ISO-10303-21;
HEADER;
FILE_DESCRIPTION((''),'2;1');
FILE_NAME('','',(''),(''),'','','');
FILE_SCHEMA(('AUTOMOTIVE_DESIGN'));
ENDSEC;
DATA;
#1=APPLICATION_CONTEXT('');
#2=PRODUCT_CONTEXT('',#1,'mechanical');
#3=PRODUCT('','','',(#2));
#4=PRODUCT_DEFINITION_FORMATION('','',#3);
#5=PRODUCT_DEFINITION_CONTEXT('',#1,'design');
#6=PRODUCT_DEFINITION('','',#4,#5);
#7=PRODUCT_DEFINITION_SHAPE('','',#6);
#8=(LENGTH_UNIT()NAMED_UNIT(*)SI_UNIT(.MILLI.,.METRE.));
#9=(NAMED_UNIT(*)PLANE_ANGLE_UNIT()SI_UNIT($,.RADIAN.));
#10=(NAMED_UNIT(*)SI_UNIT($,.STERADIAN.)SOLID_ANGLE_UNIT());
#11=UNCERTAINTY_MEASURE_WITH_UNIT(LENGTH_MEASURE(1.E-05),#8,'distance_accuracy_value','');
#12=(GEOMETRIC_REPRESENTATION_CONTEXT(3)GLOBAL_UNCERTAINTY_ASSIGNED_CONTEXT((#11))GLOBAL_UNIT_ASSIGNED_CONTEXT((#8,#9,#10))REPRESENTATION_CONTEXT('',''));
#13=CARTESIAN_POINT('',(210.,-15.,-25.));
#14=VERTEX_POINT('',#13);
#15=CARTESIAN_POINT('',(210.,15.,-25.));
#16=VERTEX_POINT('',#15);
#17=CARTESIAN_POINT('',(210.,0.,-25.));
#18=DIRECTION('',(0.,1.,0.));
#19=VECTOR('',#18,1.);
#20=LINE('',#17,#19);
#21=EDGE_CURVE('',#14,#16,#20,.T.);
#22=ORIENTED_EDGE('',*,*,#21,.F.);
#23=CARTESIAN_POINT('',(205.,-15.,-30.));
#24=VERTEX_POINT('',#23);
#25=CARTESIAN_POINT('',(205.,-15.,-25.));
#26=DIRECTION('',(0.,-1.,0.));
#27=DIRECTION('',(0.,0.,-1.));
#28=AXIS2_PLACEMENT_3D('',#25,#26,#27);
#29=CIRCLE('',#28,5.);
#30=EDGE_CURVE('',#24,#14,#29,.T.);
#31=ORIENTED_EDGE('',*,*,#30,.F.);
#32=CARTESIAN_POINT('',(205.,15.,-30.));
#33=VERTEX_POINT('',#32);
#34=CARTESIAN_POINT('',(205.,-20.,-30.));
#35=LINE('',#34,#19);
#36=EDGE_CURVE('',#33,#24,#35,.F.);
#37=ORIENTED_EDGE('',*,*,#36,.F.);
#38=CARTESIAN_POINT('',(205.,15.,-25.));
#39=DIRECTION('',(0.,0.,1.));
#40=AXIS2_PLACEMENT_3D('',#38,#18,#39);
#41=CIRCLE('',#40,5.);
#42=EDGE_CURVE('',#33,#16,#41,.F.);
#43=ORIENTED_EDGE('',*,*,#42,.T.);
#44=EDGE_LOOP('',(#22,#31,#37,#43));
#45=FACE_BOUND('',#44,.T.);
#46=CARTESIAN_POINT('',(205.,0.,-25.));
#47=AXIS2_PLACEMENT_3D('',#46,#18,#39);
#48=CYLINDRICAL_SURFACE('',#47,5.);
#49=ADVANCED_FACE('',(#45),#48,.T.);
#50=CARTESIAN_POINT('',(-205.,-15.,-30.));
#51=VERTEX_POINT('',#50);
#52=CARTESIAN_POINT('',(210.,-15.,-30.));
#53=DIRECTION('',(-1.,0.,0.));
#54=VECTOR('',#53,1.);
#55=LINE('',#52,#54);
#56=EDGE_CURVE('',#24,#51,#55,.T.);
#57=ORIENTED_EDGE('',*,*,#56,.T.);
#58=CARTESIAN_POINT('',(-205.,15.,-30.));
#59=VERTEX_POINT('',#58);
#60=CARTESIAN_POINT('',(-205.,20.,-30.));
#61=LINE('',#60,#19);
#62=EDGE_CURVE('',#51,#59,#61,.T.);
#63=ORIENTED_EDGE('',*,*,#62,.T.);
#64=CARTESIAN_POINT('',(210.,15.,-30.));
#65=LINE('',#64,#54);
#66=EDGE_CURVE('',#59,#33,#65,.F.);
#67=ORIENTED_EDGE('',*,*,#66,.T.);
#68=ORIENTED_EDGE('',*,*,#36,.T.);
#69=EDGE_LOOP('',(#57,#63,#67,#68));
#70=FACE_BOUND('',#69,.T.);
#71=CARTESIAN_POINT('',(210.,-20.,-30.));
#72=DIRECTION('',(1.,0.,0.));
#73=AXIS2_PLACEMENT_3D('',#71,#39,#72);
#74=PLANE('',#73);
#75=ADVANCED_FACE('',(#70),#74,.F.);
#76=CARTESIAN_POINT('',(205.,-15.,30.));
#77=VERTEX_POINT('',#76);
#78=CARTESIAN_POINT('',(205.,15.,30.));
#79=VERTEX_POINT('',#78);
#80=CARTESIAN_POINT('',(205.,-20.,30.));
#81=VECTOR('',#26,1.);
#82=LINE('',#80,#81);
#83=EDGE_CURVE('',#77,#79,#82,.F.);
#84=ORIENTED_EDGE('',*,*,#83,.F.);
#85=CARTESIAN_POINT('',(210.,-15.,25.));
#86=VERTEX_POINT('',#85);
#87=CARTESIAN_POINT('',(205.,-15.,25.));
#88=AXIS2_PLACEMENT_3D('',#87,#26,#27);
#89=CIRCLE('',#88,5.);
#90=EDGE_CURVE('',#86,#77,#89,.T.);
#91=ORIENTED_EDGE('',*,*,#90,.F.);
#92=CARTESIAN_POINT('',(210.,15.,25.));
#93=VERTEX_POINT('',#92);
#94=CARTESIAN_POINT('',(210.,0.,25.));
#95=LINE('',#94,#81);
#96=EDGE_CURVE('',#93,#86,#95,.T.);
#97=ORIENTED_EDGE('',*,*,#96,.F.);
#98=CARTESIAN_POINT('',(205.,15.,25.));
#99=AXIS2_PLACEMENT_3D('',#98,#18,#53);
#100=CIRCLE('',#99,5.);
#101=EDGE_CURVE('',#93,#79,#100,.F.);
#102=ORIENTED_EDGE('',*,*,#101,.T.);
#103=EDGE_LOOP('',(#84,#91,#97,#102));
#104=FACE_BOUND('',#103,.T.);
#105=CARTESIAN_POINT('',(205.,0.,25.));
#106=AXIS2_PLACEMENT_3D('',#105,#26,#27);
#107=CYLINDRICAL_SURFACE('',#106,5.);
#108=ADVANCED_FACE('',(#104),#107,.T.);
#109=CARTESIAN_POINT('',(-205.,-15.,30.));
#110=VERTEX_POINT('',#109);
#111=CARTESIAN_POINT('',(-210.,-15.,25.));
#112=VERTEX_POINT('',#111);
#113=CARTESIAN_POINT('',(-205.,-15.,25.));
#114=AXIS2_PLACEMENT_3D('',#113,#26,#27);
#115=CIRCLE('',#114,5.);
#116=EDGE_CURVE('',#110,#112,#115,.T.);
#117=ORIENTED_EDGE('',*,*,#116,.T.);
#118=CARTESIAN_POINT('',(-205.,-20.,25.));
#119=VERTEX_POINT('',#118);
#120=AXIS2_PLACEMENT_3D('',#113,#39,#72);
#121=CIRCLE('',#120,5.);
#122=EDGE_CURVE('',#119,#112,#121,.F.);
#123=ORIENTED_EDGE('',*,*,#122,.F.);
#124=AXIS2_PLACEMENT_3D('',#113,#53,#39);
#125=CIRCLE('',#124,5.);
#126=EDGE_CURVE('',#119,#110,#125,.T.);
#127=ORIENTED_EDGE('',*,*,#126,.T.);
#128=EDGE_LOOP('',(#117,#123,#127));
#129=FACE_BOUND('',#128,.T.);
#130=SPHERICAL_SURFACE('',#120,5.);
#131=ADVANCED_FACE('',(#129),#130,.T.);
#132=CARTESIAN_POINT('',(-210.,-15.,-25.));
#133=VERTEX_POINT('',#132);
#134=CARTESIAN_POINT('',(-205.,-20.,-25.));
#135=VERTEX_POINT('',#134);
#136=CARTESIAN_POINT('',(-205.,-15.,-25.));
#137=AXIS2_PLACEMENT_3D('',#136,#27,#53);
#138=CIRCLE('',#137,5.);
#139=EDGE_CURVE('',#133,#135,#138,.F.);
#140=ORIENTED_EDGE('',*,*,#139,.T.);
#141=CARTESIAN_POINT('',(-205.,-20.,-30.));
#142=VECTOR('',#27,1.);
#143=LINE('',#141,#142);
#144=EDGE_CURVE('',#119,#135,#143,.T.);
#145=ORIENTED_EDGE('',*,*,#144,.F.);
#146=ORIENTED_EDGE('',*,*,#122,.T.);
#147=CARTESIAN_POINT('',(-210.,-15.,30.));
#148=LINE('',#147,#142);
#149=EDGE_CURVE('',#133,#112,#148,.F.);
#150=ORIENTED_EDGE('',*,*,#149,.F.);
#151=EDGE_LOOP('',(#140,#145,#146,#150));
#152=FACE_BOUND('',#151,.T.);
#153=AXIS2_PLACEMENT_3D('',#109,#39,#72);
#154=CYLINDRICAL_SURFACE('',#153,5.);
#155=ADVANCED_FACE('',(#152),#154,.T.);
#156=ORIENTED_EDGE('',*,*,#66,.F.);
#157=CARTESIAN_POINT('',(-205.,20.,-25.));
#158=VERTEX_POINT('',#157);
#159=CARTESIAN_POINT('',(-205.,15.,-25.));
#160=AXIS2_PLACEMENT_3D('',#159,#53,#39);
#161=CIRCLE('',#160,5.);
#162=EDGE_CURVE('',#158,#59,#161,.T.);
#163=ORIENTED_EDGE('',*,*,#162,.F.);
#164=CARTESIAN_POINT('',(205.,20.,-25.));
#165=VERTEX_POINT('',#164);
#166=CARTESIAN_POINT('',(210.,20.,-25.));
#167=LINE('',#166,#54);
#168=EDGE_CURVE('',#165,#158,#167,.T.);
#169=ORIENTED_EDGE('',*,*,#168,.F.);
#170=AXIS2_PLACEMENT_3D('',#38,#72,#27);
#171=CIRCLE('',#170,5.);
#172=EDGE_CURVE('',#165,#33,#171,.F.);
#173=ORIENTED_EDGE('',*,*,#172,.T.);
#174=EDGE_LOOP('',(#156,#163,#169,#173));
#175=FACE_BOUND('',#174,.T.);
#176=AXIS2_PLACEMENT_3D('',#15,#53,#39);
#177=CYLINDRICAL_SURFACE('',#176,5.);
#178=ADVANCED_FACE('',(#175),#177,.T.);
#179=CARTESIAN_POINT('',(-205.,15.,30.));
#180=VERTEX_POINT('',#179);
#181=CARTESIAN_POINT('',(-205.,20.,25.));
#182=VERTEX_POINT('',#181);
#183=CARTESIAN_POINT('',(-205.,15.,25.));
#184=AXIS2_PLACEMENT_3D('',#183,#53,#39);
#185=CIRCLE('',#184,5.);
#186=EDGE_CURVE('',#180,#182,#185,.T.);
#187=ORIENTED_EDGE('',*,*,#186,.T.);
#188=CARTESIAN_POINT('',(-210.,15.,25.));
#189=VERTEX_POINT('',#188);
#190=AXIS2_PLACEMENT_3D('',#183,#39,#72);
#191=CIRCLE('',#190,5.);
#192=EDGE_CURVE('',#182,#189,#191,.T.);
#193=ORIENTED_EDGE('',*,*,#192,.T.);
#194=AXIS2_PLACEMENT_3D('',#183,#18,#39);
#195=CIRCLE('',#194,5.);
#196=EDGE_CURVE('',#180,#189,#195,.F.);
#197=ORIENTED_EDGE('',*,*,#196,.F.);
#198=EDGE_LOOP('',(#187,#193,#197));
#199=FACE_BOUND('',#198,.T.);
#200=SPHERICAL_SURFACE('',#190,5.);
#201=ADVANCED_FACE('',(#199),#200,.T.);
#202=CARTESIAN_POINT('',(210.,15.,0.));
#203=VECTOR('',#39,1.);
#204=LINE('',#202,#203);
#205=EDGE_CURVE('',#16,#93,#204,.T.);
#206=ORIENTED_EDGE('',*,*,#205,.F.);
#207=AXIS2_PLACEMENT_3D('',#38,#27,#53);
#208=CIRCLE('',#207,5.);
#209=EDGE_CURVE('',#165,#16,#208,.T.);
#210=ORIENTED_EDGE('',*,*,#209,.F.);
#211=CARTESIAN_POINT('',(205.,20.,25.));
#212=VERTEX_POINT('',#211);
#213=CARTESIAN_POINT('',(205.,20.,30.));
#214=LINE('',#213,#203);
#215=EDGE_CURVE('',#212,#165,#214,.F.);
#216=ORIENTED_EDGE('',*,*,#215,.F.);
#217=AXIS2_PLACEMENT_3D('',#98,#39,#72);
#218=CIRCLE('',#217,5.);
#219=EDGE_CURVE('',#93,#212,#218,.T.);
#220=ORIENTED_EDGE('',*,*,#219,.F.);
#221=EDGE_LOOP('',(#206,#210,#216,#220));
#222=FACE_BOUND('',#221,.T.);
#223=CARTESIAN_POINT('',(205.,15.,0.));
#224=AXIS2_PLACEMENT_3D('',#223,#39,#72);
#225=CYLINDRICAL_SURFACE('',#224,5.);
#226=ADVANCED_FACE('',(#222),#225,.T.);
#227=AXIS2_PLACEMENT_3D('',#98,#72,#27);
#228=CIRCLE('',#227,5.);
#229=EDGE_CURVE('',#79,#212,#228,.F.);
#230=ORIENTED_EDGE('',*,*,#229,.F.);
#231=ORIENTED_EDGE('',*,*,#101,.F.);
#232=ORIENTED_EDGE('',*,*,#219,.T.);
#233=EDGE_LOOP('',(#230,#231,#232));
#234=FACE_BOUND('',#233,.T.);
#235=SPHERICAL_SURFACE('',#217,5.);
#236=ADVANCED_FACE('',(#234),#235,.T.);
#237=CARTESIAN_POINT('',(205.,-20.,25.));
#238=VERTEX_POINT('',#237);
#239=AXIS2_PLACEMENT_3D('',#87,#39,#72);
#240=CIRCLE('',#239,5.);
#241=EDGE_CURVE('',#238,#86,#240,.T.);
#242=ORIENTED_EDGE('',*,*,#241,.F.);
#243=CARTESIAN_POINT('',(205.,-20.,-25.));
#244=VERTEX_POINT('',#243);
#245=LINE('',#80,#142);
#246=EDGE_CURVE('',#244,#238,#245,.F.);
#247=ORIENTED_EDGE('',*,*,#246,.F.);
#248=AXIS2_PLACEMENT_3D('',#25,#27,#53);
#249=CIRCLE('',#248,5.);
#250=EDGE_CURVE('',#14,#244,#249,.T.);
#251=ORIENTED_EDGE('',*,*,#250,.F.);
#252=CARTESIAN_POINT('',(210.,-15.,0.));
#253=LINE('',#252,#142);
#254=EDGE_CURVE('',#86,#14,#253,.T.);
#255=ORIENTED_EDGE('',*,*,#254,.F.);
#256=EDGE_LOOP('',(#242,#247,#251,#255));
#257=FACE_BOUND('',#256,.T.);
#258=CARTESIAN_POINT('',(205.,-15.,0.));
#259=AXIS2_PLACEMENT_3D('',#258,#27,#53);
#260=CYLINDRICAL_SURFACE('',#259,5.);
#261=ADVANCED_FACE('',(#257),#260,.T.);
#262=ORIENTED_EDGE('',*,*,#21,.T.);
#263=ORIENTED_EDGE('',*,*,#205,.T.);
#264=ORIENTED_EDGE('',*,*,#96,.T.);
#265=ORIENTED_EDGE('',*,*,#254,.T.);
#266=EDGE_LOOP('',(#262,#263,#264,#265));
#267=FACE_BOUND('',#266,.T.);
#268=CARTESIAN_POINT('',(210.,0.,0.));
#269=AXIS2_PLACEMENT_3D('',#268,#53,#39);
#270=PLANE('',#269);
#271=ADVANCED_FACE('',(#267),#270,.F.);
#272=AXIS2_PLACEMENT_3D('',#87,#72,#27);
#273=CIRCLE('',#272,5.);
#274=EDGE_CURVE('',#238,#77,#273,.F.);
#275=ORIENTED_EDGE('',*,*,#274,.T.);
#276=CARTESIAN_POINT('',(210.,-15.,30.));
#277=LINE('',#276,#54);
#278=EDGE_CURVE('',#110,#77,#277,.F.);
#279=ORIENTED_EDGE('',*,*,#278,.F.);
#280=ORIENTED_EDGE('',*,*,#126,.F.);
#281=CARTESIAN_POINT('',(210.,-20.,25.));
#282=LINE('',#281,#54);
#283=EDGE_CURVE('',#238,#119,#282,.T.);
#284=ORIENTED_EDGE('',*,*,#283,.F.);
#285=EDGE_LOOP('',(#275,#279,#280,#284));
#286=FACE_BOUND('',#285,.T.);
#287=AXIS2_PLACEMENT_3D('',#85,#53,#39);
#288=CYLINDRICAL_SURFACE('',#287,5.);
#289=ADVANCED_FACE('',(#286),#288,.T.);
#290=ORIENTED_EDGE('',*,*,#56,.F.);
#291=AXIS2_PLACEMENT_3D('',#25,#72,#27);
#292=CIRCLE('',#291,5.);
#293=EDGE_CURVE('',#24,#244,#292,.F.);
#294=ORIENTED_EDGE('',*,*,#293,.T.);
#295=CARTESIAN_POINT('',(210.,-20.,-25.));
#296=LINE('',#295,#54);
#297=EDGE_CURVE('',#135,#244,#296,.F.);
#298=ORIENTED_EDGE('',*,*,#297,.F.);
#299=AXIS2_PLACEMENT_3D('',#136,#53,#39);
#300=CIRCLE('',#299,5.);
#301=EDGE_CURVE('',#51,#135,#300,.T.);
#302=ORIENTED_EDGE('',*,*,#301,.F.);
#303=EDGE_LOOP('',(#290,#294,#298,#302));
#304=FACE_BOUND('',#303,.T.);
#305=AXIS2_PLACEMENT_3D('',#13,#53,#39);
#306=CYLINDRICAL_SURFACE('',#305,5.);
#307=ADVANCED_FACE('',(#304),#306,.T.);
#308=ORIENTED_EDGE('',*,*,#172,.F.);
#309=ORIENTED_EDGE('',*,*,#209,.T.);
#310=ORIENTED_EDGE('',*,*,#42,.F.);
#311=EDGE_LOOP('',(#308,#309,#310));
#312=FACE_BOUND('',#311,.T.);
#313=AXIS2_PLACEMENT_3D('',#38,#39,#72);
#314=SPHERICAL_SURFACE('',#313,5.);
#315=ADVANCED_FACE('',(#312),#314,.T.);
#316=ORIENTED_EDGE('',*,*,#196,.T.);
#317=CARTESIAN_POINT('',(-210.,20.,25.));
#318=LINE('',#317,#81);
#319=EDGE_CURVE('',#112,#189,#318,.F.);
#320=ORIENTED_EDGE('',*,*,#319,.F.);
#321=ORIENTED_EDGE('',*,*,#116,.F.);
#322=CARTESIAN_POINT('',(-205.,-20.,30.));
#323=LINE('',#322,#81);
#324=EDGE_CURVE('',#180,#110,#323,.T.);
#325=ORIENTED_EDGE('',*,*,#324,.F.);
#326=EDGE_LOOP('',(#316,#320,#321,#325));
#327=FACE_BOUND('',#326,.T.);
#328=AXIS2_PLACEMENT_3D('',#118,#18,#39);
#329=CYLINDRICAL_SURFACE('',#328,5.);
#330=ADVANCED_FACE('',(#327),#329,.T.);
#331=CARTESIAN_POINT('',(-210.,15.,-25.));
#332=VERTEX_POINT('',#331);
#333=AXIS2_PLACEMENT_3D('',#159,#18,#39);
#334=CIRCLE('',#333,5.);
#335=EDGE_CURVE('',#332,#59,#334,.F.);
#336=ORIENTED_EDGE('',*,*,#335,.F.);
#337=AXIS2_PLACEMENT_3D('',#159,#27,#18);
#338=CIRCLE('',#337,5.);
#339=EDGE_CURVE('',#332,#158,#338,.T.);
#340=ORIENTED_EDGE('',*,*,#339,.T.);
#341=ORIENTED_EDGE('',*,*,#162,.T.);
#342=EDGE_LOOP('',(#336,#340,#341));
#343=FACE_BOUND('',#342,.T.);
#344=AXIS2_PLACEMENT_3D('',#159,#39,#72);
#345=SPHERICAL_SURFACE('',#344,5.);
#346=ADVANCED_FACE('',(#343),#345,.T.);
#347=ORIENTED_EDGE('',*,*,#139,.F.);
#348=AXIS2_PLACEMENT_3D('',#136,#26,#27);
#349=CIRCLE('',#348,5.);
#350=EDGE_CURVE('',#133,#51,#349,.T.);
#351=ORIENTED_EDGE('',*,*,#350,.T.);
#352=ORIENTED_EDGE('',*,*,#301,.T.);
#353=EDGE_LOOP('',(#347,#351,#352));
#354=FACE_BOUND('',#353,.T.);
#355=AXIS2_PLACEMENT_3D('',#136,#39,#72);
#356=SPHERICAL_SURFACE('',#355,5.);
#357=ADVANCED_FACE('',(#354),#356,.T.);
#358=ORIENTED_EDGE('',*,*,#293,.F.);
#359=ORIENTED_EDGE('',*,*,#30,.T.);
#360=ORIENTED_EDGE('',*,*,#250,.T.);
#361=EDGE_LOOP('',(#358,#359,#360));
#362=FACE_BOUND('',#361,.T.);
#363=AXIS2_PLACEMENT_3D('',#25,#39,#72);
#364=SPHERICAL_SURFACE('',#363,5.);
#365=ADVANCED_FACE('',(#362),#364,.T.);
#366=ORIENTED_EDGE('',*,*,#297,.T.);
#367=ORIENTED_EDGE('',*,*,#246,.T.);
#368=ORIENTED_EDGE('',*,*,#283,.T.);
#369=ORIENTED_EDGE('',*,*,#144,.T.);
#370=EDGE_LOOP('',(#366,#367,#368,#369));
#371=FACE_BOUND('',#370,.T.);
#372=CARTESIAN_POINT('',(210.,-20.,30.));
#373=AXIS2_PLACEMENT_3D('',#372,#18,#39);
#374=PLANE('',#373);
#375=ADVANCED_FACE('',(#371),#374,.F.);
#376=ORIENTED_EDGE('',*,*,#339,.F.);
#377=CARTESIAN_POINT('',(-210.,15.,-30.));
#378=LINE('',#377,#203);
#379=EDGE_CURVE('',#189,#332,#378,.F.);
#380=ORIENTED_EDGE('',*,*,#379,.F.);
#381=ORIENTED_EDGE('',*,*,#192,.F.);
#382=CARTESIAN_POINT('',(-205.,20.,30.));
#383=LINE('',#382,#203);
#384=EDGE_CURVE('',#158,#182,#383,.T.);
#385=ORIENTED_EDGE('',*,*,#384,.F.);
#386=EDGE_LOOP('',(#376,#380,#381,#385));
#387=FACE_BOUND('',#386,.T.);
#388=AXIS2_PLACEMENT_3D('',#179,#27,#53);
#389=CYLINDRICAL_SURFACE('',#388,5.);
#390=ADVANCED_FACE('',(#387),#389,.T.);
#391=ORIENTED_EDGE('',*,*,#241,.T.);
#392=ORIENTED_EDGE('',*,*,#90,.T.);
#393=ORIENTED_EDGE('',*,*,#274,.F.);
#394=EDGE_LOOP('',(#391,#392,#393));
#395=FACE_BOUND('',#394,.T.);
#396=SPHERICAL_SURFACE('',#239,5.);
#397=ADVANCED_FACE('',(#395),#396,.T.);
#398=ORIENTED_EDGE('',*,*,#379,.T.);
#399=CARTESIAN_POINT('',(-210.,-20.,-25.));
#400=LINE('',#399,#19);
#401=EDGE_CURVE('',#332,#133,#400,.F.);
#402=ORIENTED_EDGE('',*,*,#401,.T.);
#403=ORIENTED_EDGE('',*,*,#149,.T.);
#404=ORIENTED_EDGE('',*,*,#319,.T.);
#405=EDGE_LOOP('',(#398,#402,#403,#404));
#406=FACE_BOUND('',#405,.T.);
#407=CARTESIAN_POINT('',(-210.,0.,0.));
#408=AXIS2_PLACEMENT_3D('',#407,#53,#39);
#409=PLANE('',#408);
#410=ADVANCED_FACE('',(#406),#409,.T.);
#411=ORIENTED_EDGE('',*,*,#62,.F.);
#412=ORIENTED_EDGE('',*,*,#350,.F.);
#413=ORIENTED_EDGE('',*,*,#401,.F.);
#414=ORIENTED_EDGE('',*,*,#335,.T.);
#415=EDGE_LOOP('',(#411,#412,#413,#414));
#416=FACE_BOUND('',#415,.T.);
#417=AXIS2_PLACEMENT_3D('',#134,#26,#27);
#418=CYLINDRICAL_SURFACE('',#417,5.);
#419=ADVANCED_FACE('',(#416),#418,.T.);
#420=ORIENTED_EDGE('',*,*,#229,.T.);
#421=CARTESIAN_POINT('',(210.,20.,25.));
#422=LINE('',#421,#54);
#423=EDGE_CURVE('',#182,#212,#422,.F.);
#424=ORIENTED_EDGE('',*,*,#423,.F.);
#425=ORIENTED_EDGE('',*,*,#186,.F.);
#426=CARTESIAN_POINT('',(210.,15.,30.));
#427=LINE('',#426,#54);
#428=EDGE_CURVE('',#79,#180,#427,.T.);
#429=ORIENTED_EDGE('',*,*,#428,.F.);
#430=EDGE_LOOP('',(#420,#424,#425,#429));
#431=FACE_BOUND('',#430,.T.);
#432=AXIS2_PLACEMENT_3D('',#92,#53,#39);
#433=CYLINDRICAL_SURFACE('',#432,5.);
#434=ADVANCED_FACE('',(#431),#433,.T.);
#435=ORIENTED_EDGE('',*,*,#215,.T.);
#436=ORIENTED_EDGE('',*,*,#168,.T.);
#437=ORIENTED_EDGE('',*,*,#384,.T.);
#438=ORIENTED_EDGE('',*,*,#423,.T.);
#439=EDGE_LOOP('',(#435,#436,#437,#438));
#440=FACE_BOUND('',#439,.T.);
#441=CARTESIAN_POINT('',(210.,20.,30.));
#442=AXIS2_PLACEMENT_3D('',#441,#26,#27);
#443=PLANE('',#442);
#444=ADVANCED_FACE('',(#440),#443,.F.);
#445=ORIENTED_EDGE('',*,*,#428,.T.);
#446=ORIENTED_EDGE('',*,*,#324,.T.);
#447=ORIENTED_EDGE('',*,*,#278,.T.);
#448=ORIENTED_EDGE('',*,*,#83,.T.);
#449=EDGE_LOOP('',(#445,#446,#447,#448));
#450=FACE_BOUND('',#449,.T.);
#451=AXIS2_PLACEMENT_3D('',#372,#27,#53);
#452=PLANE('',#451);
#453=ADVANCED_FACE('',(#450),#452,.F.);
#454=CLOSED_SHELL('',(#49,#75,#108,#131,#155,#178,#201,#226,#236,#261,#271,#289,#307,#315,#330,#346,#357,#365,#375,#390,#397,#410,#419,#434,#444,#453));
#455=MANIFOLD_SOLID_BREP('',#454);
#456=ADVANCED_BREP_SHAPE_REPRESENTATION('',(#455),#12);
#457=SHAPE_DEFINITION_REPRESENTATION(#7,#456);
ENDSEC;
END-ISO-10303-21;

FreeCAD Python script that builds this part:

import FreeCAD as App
import Part
import Sketcher

V = App.Vector

doc = App.newDocument("Part")
body = doc.addObject("PartDesign::Body", "Body")

# Sketch on YZ plane
sketch1 = body.newObject("Sketcher::SketchObject", "Sketch")
sketch1.AttachmentSupport = (doc.getObject("YZ_Plane"), [""])
sketch1.MapMode = "FlatFace"
sketch1.addGeometry(Part.LineSegment(V(20, 30, 0), V(-20, 30, 0)), False)
sketch1.addGeometry(Part.LineSegment(V(-20, 30, 0), V(-20, -30, 0)), False)
sketch1.addGeometry(Part.LineSegment(V(-20, -30, 0), V(20, -30, 0)), False)
sketch1.addGeometry(Part.LineSegment(V(20, -30, 0), V(20, 30, 0)), False)
sketch1.addConstraint(Sketcher.Constraint("Coincident", 0, 2, 1, 1))
sketch1.addConstraint(Sketcher.Constraint("Coincident", 1, 2, 2, 1))
sketch1.addConstraint(Sketcher.Constraint("Coincident", 2, 2, 3, 1))
sketch1.addConstraint(Sketcher.Constraint("Coincident", 3, 2, 0, 1))
sketch1.addConstraint(Sketcher.Constraint("Horizontal", 0))
sketch1.addConstraint(Sketcher.Constraint("Vertical", 1))
sketch1.addConstraint(Sketcher.Constraint("Horizontal", 2))
sketch1.addConstraint(Sketcher.Constraint("Vertical", 3))
sketch1.addConstraint(Sketcher.Constraint("Symmetric", 0, 2, 2, 2, -1, 1))
sketch1.addConstraint(Sketcher.Constraint("DistanceX", 0, 2, 0, 1, 40.0))
sketch1.addConstraint(Sketcher.Constraint("DistanceY", 1, 2, 1, 1, 60.0))
pad1 = body.newObject("PartDesign::Pad", "Pad")
pad1.Profile = sketch1
pad1.Length = 420
pad1.Midplane = True
doc.recompute()

fillet = body.newObject("PartDesign::Fillet", "Fillet")
fillet.Base = (pad1, ["Edge1"])
fillet.UseAllEdges = True
fillet.Radius = 5

doc.recompute()
